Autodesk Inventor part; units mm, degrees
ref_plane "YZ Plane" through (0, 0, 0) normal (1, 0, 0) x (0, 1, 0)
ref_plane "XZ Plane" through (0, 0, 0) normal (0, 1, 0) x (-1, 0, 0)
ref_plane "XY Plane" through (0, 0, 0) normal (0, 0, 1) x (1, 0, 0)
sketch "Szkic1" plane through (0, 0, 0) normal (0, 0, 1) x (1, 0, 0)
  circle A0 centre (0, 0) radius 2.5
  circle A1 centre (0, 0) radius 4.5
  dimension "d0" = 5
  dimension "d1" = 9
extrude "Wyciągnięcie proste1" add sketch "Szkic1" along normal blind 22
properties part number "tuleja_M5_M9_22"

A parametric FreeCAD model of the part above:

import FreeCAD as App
import Part
import Sketcher
from FreeCAD import Vector

doc = App.newDocument("Part")
params = doc.addObject("Spreadsheet::Sheet", "Params")
for row, (alias, value) in enumerate([
    ("sketch1_diameter", "9 mm"),
    ("sketch1_diameter2", "5 mm"),
    ("pad1_length", "22 mm"),
], start=1):
    params.set(f"A{row}", alias)
    params.set(f"B{row}", "=" + value)
    params.setAlias(f"B{row}", alias)

body = doc.addObject("PartDesign::Body", "Body")

# Sketch on XY plane
sketch1 = body.newObject("Sketcher::SketchObject", "Sketch")
sketch1.AttachmentSupport = (doc.getObject("XY_Plane"), [""])
sketch1.MapMode = "FlatFace"
sketch1.addGeometry(Part.Circle(Vector(0, 0, 0), Vector(0, 0, 1), 4.5), False)
sketch1.addGeometry(Part.Circle(Vector(0, 0, 0), Vector(0, 0, 1), 2.5), False)
sketch1.addConstraint(Sketcher.Constraint("Coincident", 0, 3, -1, 1))
sketch1.addConstraint(Sketcher.Constraint("Coincident", 1, 3, -1, 1))
sketch1.addConstraint(Sketcher.Constraint("Diameter", 0, 9.0))
sketch1.addConstraint(Sketcher.Constraint("Diameter", 1, 5.0))
sketch1.setExpression("Constraints[2]", "Params.sketch1_diameter")
sketch1.setExpression("Constraints[3]", "Params.sketch1_diameter2")
pad1 = body.newObject("PartDesign::Pad", "Pad")
pad1.Profile = sketch1
pad1.setExpression("Length", "Params.pad1_length")

doc.recompute()
